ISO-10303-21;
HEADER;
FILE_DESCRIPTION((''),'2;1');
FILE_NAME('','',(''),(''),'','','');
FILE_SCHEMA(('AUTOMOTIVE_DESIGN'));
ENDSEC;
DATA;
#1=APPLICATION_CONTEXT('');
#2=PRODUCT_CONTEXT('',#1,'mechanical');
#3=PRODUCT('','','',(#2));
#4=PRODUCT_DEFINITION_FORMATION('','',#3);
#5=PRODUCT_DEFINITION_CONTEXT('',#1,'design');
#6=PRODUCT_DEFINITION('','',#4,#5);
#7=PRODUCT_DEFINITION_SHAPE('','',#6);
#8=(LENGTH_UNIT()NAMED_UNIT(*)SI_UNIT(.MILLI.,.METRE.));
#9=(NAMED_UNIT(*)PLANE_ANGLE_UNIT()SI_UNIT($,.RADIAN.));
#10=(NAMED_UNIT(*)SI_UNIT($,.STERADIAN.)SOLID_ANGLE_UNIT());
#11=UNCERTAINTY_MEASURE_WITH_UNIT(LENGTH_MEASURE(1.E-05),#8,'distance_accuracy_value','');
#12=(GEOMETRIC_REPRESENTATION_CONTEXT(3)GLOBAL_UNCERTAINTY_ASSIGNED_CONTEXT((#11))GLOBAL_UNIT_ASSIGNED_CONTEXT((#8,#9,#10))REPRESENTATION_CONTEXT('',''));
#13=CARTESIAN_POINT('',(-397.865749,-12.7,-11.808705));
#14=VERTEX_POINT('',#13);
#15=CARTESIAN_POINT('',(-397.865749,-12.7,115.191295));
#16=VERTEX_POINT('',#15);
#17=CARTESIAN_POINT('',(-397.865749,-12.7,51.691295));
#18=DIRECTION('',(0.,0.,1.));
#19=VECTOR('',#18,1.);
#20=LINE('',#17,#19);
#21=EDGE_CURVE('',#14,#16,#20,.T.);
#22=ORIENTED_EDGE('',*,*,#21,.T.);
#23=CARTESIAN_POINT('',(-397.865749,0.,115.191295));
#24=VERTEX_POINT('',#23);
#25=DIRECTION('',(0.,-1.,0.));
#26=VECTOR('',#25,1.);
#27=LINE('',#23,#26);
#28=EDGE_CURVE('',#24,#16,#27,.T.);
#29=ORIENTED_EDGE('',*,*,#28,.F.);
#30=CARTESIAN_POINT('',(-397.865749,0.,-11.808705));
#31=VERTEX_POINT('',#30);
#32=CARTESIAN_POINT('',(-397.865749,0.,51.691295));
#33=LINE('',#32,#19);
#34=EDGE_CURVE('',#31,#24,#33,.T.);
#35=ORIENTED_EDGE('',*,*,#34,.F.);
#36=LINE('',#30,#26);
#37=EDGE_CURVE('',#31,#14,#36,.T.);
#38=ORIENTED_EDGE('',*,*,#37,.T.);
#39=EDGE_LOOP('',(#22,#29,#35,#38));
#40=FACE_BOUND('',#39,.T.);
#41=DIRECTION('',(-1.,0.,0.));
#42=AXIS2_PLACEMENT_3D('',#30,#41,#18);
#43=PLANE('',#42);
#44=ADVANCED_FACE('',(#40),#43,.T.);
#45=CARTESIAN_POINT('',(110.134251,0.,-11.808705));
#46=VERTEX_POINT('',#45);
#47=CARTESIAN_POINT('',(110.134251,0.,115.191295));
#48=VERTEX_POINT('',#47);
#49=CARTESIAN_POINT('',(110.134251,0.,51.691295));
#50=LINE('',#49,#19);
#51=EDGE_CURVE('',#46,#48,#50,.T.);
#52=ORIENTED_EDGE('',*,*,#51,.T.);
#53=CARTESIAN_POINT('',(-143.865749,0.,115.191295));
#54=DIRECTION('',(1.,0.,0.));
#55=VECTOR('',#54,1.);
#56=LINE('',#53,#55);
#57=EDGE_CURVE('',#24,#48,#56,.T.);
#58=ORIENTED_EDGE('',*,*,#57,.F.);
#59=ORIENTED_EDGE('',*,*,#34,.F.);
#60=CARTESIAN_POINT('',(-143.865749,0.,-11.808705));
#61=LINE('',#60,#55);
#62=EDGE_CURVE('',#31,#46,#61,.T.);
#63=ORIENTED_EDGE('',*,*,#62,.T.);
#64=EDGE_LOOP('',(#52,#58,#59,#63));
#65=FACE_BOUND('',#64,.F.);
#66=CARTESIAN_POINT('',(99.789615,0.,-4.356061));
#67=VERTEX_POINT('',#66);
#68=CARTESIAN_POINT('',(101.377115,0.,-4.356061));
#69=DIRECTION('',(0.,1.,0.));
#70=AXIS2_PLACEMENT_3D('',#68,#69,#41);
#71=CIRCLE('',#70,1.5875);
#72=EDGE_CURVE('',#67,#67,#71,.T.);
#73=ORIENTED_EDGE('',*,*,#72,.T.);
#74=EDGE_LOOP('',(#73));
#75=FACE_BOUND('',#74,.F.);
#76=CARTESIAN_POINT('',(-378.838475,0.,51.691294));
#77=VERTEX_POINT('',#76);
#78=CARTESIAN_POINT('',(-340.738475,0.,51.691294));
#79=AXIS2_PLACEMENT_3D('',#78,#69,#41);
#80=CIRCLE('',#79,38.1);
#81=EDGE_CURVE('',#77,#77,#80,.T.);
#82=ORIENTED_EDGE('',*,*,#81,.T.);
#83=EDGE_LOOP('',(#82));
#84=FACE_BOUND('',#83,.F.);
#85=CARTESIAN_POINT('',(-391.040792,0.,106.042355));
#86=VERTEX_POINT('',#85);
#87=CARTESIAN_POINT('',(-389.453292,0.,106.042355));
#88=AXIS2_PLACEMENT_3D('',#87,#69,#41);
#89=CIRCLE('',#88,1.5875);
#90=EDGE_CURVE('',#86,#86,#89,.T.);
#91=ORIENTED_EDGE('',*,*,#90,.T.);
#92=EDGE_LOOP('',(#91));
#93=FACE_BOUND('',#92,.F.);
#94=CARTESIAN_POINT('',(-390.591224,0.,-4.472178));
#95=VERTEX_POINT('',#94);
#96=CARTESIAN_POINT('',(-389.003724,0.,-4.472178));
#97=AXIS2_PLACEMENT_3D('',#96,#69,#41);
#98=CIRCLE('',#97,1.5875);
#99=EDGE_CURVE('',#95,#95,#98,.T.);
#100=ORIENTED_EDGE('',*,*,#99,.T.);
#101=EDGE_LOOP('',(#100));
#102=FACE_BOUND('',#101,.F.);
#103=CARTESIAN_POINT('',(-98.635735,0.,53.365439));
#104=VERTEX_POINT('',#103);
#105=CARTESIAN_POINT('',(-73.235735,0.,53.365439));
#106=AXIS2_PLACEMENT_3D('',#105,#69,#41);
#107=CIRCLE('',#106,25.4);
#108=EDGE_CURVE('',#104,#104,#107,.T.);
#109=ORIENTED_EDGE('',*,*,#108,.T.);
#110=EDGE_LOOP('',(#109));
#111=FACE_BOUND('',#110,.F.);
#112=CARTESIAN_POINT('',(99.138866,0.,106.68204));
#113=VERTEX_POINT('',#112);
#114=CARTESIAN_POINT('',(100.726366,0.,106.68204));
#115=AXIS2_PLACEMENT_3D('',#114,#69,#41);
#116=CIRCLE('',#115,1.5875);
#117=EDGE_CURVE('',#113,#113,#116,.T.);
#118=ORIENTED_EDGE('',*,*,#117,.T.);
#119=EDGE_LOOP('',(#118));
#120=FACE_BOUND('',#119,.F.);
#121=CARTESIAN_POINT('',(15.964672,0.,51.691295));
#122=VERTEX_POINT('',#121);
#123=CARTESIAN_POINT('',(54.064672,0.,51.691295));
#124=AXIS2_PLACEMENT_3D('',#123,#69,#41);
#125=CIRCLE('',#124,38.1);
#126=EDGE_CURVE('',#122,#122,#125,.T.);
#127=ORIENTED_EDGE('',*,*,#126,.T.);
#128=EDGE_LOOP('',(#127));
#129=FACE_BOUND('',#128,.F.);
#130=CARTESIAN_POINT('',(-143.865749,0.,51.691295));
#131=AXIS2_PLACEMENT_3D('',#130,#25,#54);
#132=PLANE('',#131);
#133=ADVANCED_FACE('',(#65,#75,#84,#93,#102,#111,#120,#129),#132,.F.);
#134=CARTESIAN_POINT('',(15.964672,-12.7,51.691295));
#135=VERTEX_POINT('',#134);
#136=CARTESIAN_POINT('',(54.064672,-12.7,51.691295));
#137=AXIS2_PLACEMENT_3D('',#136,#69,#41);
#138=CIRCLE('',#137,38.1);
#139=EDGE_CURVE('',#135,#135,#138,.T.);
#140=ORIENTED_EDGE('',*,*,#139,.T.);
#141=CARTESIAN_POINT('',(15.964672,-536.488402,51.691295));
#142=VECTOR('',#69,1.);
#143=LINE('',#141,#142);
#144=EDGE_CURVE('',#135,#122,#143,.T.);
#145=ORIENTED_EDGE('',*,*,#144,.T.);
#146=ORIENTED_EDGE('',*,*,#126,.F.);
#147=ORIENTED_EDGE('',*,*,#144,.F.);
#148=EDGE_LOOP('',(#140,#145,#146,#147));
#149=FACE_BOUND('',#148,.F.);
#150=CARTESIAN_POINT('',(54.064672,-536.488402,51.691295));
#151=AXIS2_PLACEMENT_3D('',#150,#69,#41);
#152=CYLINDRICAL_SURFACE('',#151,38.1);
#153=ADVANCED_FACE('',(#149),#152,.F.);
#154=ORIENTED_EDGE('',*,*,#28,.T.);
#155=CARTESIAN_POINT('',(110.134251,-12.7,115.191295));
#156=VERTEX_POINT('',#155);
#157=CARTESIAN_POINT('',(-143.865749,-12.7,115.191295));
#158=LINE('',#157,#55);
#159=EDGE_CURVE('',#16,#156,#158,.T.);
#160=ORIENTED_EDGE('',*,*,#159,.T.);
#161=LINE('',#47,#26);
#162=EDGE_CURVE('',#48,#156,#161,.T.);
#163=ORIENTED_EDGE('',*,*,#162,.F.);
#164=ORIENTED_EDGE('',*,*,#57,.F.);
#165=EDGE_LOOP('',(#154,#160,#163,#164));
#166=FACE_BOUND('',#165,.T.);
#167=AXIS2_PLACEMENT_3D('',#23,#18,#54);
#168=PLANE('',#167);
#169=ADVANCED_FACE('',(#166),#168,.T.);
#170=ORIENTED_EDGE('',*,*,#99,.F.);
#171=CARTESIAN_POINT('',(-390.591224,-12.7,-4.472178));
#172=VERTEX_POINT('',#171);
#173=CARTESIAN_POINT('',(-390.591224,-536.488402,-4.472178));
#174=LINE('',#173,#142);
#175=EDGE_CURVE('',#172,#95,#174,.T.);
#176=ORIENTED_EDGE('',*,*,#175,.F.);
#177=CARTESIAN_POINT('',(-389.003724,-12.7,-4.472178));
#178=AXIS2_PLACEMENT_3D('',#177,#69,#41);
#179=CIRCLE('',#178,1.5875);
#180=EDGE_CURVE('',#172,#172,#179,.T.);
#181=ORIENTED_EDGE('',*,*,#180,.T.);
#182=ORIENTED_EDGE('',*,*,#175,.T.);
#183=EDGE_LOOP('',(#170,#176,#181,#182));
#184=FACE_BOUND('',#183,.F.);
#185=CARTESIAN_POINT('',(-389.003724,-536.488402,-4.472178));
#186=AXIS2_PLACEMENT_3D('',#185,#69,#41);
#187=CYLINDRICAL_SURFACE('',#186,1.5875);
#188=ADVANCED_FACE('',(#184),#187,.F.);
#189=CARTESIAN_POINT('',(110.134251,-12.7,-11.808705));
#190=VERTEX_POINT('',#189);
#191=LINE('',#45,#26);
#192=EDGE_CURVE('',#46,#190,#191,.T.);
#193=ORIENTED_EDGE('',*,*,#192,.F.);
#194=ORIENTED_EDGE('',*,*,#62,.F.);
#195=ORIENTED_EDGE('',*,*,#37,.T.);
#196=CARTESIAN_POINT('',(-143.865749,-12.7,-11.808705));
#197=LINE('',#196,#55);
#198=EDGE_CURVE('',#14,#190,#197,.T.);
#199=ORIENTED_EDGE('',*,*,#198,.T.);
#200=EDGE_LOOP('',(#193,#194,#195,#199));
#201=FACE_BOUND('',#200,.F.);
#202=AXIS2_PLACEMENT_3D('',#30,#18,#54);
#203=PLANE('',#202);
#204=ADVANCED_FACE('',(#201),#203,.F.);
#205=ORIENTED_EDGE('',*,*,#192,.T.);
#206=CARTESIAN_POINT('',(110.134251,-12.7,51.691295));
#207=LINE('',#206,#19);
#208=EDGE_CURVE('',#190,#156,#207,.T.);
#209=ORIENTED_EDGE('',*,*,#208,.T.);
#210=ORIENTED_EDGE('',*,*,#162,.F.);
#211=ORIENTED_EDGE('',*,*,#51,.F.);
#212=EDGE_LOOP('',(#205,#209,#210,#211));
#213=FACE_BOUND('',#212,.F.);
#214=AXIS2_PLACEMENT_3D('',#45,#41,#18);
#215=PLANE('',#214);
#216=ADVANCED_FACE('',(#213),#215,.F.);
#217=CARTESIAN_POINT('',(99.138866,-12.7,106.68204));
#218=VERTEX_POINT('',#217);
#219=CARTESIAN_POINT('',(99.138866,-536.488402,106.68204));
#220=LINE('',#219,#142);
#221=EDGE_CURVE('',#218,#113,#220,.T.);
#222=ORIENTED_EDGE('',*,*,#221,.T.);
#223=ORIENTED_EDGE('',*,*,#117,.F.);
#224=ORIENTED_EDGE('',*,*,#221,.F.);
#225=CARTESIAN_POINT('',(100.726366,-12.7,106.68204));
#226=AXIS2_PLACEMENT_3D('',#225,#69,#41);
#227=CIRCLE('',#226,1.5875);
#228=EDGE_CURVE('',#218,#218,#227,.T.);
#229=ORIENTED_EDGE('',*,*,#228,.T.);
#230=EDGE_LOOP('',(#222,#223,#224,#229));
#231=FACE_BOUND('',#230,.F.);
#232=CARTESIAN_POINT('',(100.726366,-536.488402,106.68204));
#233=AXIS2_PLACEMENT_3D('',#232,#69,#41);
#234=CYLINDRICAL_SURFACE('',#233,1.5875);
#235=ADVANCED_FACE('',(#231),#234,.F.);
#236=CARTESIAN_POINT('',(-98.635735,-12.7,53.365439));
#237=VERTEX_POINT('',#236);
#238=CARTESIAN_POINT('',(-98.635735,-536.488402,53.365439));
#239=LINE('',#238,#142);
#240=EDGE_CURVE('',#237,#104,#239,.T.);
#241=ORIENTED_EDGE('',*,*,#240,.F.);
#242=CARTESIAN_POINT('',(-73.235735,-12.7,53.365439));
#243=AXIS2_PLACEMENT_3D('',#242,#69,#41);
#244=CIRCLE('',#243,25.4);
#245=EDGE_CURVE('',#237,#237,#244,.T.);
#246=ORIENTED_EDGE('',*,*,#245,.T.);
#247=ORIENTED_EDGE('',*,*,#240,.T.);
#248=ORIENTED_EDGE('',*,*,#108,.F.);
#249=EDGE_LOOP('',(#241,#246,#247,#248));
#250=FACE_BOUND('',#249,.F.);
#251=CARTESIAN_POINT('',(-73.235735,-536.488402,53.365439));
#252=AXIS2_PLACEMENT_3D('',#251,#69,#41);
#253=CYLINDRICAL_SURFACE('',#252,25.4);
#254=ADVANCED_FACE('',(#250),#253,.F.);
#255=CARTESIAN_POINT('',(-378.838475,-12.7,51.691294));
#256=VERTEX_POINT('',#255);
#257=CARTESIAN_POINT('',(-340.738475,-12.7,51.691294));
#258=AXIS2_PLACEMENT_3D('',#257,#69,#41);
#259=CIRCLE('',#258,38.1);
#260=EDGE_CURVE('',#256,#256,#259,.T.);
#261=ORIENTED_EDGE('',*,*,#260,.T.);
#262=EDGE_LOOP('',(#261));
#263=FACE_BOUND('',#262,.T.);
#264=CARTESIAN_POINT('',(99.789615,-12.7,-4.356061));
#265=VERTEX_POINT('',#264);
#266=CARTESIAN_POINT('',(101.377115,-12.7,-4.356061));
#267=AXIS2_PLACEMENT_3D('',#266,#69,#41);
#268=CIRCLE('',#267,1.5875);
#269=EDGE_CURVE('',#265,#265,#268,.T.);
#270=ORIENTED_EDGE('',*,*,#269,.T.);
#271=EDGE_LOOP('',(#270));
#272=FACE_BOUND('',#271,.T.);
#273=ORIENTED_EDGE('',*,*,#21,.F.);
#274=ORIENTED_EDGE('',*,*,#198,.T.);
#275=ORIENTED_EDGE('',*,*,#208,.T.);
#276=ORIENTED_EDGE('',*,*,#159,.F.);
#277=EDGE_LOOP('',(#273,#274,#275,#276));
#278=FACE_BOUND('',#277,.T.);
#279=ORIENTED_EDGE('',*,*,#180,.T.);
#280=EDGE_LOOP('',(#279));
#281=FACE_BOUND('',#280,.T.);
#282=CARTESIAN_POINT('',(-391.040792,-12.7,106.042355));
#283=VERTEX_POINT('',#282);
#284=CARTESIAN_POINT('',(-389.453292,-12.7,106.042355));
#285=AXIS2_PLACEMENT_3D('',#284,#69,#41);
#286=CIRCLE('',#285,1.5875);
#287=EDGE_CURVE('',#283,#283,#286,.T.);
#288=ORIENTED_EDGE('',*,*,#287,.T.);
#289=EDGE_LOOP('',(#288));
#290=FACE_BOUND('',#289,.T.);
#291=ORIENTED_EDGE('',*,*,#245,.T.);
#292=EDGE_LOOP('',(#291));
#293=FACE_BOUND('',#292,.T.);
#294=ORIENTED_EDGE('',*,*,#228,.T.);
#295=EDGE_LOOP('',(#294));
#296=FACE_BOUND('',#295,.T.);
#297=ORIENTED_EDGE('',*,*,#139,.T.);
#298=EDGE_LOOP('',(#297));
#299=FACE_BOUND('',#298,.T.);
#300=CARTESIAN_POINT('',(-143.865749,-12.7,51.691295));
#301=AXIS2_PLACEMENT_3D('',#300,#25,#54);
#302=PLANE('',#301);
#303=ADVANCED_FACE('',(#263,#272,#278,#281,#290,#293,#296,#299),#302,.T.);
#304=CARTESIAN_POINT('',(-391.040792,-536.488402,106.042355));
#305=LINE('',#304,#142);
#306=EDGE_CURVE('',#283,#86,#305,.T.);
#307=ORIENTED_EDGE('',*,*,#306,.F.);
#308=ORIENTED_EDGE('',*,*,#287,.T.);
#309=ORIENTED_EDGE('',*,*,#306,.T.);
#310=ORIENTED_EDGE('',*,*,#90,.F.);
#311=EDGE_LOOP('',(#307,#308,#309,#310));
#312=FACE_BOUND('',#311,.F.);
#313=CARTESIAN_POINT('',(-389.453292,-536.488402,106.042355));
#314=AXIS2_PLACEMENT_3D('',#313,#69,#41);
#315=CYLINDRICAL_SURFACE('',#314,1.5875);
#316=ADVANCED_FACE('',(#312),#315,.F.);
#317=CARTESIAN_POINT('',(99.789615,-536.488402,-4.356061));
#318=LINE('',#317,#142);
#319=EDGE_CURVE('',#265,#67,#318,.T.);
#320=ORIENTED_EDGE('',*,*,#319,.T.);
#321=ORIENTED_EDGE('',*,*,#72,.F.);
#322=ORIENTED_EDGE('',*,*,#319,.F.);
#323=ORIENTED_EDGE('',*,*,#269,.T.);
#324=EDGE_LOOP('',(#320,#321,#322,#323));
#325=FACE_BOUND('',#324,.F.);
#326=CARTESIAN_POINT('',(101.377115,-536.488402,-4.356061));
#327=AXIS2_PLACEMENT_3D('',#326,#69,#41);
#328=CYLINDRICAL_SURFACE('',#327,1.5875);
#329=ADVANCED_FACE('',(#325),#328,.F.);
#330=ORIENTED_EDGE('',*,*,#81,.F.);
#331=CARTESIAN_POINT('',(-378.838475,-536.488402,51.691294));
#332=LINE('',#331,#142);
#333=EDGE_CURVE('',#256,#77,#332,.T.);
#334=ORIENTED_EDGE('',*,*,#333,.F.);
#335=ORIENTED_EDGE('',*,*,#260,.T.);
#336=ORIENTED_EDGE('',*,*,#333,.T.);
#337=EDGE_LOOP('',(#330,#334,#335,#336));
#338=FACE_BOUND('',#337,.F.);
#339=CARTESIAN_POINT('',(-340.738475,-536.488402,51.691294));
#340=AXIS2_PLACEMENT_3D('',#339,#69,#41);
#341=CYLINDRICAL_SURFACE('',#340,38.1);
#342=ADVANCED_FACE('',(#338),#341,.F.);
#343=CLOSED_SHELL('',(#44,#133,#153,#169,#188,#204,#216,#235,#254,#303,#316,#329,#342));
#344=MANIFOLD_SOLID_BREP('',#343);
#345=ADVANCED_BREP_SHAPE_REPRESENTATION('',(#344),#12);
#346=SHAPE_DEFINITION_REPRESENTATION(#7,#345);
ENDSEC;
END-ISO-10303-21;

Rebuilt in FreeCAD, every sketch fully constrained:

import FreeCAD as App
import Part
import Sketcher
from FreeCAD import Vector
Q = App.Units.Quantity

doc = App.newDocument("Part")
body = doc.addObject("PartDesign::Body", "Body")

sketch1 = body.newObject("Sketcher::SketchObject", "Sketch")
sketch1.AttachmentSupport = (doc.getObject("XZ_Plane"), [""])
sketch1.MapMode = "FlatFace"
sketch1.addGeometry([
    Part.LineSegment(Vector(-398, 115, 0), Vector(-398, -12, 0)),
    Part.LineSegment(Vector(-398, -12, 0), Vector(110, -12, 0)),
    Part.LineSegment(Vector(110, -12, 0), Vector(110, 115, 0)),
    Part.LineSegment(Vector(110, 115, 0), Vector(-398, 115, 0)),
], False)
sketch1.addConstraint([
    Sketcher.Constraint("Coincident", 0, 2, 1, 1),
    Sketcher.Constraint("Coincident", 1, 2, 2, 1),
    Sketcher.Constraint("Coincident", 2, 2, 3, 1),
    Sketcher.Constraint("Coincident", 3, 2, 0, 1),
    Sketcher.Constraint("Vertical", 0),
    Sketcher.Constraint("Horizontal", 1),
    Sketcher.Constraint("Vertical", 2),
    Sketcher.Constraint("Horizontal", 3),
    Sketcher.Constraint("DistanceX", 1, 1, 1, 2, Q("20 in")),
    Sketcher.Constraint("DistanceY", 0, 2, 0, 1, Q("5 in")),
    Sketcher.Constraint("DistanceX", 0, 2, -1, 1, 397.865749),
    Sketcher.Constraint("DistanceY", 0, 2, -1, 1, 11.808705),
])
pad1 = body.newObject("PartDesign::Pad", "Pad")
pad1.Profile = sketch1
pad1.Length = Q("0.5 in")

sketch2 = body.newObject("Sketcher::SketchObject", "Sketch001")
sketch2.AttachmentSupport = (doc.getObject("XZ_Plane"), [""])
sketch2.MapMode = "FlatFace"
sketch2.AttachmentOffset = App.Placement(Vector(0, 0, 0.5 * 25.4), App.Rotation())
sketch2.addGeometry(Part.Circle(Vector(100.7, 106.7, 0), Vector(0, 0, 1), 1.6), False)
sketch2.addConstraint([
    Sketcher.Constraint("Diameter", 0, Q("0.125 in")),
    Sketcher.Constraint("DistanceY", -1, 1, 0, 3, 106.68204),
    Sketcher.Constraint("DistanceX", -1, 1, 0, 3, 100.726366),
])
doc.recompute()
hole = body.newObject("PartDesign::Hole", "Hole")
hole.Profile = sketch2
hole.ThreadType = "None"
hole.Diameter = Q("0.125 in")
hole.DepthType = "ThroughAll"

sketch3 = body.newObject("Sketcher::SketchObject", "Sketch002")
sketch3.AttachmentSupport = (doc.getObject("XZ_Plane"), [""])
sketch3.MapMode = "FlatFace"
sketch3.AttachmentOffset = App.Placement(Vector(0, 0, 0.5 * 25.4), App.Rotation())
sketch3.addGeometry([
    Part.Circle(Vector(101.4, -4.4, 0), Vector(0, 0, 1), 1.6),
    Part.Circle(Vector(-389.5, 106, 0), Vector(0, 0, 1), 1.6),
    Part.Circle(Vector(-389, -4.5, 0), Vector(0, 0, 1), 1.6),
], False)
sketch3.addConstraint([
    Sketcher.Constraint("Equal", 0, 1),
    Sketcher.Constraint("Equal", 1, 2),
    Sketcher.Constraint("Diameter", 0, Q("0.125 in")),
    Sketcher.Constraint("DistanceY", 0, 3, -1, 1, 4.356061),
    Sketcher.Constraint("DistanceX", 1, 3, -1, 1, 389.453292),
    Sketcher.Constraint("DistanceY", 2, 3, -1, 1, 4.472178),
    Sketcher.Constraint("DistanceX", 2, 3, 0, 3, 490.380839),
    Sketcher.Constraint("DistanceX", -1, 1, 0, 3, 101.377115),
    Sketcher.Constraint("DistanceY", -1, 1, 1, 3, 106.042355),
])
doc.recompute()
hole2 = body.newObject("PartDesign::Hole", "Hole001")
hole2.Profile = sketch3
hole2.ThreadType = "None"
hole2.Diameter = Q("0.125 in")
hole2.DepthType = "ThroughAll"

sketch4 = body.newObject("Sketcher::SketchObject", "Sketch003")
sketch4.AttachmentSupport = (doc.getObject("XZ_Plane"), [""])
sketch4.MapMode = "FlatFace"
sketch4.AttachmentOffset = App.Placement(Vector(0, 0, 0.5 * 25.4), App.Rotation())
sketch4.addGeometry(Part.Circle(Vector(-341, 52, 0), Vector(0, 0, 1), 38), False)
sketch4.addConstraint([
    Sketcher.Constraint("Diameter", 0, Q("3 in")),
    Sketcher.Constraint("DistanceX", 0, 3, -1, 1, 340.738475),
    Sketcher.Constraint("DistanceY", -1, 1, 0, 3, 51.691294),
])
doc.recompute()
hole3 = body.newObject("PartDesign::Hole", "Hole002")
hole3.Profile = sketch4
hole3.ThreadType = "None"
hole3.Diameter = Q("3 in")
hole3.DepthType = "ThroughAll"

sketch5 = body.newObject("Sketcher::SketchObject", "Sketch004")
sketch5.AttachmentSupport = (doc.getObject("XZ_Plane"), [""])
sketch5.MapMode = "FlatFace"
sketch5.AttachmentOffset = App.Placement(Vector(0, 0, 0.5 * 25.4), App.Rotation())
sketch5.addGeometry(Part.Circle(Vector(-73, 53, 0), Vector(0, 0, 1), 25), False)
sketch5.addConstraint([
    Sketcher.Constraint("Diameter", 0, Q("2 in")),
    Sketcher.Constraint("DistanceY", -1, 1, 0, 3, 53.365439),
    Sketcher.Constraint("DistanceX", 0, 3, -1, 1, 73.235735),
])
doc.recompute()
hole4 = body.newObject("PartDesign::Hole", "Hole003")
hole4.Profile = sketch5
hole4.ThreadType = "None"
hole4.Diameter = Q("2 in")
hole4.DepthType = "ThroughAll"

sketch6 = body.newObject("Sketcher::SketchObject", "Sketch005")
sketch6.AttachmentSupport = (doc.getObject("XZ_Plane"), [""])
sketch6.MapMode = "FlatFace"
sketch6.AttachmentOffset = App.Placement(Vector(0, 0, 0.5 * 25.4), App.Rotation())
sketch6.addGeometry(Part.Circle(Vector(54, 52, 0), Vector(0, 0, 1), 38), False)
sketch6.addConstraint([
    Sketcher.Constraint("Diameter", 0, Q("3 in")),
    Sketcher.Constraint("DistanceX", -1, 1, 0, 3, 54.064672),
    Sketcher.Constraint("DistanceY", -1, 1, 0, 3, 51.691295),
])
doc.recompute()
hole5 = body.newObject("PartDesign::Hole", "Hole004")
hole5.Profile = sketch6
hole5.ThreadType = "None"
hole5.Diameter = Q("3 in")
hole5.DepthType = "ThroughAll"

doc.recompute()
